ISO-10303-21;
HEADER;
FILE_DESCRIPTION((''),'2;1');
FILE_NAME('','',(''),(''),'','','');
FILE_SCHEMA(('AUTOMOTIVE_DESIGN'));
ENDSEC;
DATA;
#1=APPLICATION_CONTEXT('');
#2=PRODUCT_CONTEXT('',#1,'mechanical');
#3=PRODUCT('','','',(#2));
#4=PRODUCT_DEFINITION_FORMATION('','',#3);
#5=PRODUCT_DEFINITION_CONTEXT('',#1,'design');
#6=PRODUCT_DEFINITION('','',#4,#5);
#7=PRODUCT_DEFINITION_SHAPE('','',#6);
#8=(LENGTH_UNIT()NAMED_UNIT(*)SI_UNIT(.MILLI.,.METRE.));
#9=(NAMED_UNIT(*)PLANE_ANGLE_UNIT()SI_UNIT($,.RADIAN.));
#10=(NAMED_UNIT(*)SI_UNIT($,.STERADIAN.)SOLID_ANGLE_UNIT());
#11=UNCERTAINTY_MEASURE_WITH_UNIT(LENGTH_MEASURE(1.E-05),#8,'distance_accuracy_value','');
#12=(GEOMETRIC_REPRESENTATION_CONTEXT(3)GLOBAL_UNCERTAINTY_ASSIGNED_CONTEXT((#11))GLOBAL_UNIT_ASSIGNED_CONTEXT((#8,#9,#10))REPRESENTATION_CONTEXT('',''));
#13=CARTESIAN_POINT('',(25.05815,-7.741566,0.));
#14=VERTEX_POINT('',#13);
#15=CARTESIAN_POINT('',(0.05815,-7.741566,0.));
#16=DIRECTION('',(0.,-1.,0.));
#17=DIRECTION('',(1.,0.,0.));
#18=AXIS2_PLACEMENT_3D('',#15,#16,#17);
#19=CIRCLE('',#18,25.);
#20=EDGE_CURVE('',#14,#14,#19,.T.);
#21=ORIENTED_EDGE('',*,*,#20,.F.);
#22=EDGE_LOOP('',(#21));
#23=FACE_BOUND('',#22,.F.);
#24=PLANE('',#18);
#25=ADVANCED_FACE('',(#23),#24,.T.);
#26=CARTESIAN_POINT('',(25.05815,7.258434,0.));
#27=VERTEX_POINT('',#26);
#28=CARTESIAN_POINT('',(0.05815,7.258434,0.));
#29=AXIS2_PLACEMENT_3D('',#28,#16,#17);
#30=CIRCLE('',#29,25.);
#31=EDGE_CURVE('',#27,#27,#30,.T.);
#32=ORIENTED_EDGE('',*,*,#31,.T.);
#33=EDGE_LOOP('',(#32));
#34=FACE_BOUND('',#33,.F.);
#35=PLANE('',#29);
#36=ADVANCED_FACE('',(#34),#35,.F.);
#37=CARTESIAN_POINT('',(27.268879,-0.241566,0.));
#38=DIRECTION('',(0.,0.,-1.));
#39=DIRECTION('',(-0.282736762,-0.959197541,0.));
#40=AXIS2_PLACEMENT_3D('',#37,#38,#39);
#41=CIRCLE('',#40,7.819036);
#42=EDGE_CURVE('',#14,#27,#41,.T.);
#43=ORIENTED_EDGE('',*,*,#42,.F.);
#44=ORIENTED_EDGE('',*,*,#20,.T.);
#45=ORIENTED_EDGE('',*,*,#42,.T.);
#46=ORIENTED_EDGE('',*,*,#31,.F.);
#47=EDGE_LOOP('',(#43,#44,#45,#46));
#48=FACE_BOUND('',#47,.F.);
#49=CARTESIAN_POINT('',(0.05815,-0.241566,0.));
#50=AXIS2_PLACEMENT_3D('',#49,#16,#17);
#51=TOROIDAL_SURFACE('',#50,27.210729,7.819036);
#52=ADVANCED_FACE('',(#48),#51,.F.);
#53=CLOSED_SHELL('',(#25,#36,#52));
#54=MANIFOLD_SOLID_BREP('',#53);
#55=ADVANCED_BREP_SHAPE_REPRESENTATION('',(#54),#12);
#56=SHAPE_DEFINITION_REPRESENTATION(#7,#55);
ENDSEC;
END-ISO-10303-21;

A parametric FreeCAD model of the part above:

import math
import FreeCAD as App
import Part
import Sketcher
from FreeCAD import Vector
Q = App.Units.Quantity

doc = App.newDocument("Part")
body = doc.addObject("PartDesign::Body", "Body")

sketch1 = doc.addObject("Sketcher::SketchObject", "Sketch")
body.addObject(sketch1)
sketch1.AttachmentSupport = (doc.XY_Plane, [""])
sketch1.MapMode = "FlatFace"
sketch1.addGeometry([
    Part.LineSegment(Vector(25, 7, 0), Vector(0, 7, 0)),
    Part.LineSegment(Vector(0, 7, 0), Vector(0, -8, 0)),
    Part.LineSegment(Vector(0, -8, 0), Vector(25, -8, 0)),
    Part.ArcOfCircle(Part.Circle(Vector(27, 0, 0), Vector(0, 0, 1), 8), math.radians(106), math.radians(254)),
], False)
sketch1.addGeometry(Part.LineSegment(Vector(0, 7, 0), Vector(0, -8, 0)), True)
sketch1.addConstraint([
    Sketcher.Constraint("Coincident", 0, 2, 1, 1),
    Sketcher.Constraint("Coincident", 1, 2, 2, 1),
    Sketcher.Constraint("Coincident", 2, 2, 3, 2),
    Sketcher.Constraint("Coincident", 3, 1, 0, 1),
    Sketcher.Constraint("Horizontal", 0),
    Sketcher.Constraint("Vertical", 1),
    Sketcher.Constraint("Horizontal", 2),
    Sketcher.Constraint("Vertical", 4),
    Sketcher.Constraint("Coincident", 4, 1, 0, 2),
    Sketcher.Constraint("Horizontal", 2, 2, 4, 2),
    Sketcher.Constraint("Vertical", 2, 2, 3, 1),
    Sketcher.Constraint("DistanceX", 0, 2, 0, 1, Q("25 mm")),
    Sketcher.Constraint("DistanceY", 1, 2, 1, 1, Q("15 mm")),
    Sketcher.Constraint("Radius", 3, Q("7.819036 mm")),
    Sketcher.Constraint("DistanceX", -1, 1, 3, 3, Q("27.268879 mm")),
    Sketcher.Constraint("DistanceY", 3, 3, -1, 1, Q("0.241566 mm")),
])
revolution = doc.addObject("PartDesign::Revolution", "Revolution")
body.addObject(revolution)
revolution.Profile = sketch1
revolution.ReferenceAxis = (sketch1, ["Axis0"])
revolution.Angle = 360

doc.recompute()
